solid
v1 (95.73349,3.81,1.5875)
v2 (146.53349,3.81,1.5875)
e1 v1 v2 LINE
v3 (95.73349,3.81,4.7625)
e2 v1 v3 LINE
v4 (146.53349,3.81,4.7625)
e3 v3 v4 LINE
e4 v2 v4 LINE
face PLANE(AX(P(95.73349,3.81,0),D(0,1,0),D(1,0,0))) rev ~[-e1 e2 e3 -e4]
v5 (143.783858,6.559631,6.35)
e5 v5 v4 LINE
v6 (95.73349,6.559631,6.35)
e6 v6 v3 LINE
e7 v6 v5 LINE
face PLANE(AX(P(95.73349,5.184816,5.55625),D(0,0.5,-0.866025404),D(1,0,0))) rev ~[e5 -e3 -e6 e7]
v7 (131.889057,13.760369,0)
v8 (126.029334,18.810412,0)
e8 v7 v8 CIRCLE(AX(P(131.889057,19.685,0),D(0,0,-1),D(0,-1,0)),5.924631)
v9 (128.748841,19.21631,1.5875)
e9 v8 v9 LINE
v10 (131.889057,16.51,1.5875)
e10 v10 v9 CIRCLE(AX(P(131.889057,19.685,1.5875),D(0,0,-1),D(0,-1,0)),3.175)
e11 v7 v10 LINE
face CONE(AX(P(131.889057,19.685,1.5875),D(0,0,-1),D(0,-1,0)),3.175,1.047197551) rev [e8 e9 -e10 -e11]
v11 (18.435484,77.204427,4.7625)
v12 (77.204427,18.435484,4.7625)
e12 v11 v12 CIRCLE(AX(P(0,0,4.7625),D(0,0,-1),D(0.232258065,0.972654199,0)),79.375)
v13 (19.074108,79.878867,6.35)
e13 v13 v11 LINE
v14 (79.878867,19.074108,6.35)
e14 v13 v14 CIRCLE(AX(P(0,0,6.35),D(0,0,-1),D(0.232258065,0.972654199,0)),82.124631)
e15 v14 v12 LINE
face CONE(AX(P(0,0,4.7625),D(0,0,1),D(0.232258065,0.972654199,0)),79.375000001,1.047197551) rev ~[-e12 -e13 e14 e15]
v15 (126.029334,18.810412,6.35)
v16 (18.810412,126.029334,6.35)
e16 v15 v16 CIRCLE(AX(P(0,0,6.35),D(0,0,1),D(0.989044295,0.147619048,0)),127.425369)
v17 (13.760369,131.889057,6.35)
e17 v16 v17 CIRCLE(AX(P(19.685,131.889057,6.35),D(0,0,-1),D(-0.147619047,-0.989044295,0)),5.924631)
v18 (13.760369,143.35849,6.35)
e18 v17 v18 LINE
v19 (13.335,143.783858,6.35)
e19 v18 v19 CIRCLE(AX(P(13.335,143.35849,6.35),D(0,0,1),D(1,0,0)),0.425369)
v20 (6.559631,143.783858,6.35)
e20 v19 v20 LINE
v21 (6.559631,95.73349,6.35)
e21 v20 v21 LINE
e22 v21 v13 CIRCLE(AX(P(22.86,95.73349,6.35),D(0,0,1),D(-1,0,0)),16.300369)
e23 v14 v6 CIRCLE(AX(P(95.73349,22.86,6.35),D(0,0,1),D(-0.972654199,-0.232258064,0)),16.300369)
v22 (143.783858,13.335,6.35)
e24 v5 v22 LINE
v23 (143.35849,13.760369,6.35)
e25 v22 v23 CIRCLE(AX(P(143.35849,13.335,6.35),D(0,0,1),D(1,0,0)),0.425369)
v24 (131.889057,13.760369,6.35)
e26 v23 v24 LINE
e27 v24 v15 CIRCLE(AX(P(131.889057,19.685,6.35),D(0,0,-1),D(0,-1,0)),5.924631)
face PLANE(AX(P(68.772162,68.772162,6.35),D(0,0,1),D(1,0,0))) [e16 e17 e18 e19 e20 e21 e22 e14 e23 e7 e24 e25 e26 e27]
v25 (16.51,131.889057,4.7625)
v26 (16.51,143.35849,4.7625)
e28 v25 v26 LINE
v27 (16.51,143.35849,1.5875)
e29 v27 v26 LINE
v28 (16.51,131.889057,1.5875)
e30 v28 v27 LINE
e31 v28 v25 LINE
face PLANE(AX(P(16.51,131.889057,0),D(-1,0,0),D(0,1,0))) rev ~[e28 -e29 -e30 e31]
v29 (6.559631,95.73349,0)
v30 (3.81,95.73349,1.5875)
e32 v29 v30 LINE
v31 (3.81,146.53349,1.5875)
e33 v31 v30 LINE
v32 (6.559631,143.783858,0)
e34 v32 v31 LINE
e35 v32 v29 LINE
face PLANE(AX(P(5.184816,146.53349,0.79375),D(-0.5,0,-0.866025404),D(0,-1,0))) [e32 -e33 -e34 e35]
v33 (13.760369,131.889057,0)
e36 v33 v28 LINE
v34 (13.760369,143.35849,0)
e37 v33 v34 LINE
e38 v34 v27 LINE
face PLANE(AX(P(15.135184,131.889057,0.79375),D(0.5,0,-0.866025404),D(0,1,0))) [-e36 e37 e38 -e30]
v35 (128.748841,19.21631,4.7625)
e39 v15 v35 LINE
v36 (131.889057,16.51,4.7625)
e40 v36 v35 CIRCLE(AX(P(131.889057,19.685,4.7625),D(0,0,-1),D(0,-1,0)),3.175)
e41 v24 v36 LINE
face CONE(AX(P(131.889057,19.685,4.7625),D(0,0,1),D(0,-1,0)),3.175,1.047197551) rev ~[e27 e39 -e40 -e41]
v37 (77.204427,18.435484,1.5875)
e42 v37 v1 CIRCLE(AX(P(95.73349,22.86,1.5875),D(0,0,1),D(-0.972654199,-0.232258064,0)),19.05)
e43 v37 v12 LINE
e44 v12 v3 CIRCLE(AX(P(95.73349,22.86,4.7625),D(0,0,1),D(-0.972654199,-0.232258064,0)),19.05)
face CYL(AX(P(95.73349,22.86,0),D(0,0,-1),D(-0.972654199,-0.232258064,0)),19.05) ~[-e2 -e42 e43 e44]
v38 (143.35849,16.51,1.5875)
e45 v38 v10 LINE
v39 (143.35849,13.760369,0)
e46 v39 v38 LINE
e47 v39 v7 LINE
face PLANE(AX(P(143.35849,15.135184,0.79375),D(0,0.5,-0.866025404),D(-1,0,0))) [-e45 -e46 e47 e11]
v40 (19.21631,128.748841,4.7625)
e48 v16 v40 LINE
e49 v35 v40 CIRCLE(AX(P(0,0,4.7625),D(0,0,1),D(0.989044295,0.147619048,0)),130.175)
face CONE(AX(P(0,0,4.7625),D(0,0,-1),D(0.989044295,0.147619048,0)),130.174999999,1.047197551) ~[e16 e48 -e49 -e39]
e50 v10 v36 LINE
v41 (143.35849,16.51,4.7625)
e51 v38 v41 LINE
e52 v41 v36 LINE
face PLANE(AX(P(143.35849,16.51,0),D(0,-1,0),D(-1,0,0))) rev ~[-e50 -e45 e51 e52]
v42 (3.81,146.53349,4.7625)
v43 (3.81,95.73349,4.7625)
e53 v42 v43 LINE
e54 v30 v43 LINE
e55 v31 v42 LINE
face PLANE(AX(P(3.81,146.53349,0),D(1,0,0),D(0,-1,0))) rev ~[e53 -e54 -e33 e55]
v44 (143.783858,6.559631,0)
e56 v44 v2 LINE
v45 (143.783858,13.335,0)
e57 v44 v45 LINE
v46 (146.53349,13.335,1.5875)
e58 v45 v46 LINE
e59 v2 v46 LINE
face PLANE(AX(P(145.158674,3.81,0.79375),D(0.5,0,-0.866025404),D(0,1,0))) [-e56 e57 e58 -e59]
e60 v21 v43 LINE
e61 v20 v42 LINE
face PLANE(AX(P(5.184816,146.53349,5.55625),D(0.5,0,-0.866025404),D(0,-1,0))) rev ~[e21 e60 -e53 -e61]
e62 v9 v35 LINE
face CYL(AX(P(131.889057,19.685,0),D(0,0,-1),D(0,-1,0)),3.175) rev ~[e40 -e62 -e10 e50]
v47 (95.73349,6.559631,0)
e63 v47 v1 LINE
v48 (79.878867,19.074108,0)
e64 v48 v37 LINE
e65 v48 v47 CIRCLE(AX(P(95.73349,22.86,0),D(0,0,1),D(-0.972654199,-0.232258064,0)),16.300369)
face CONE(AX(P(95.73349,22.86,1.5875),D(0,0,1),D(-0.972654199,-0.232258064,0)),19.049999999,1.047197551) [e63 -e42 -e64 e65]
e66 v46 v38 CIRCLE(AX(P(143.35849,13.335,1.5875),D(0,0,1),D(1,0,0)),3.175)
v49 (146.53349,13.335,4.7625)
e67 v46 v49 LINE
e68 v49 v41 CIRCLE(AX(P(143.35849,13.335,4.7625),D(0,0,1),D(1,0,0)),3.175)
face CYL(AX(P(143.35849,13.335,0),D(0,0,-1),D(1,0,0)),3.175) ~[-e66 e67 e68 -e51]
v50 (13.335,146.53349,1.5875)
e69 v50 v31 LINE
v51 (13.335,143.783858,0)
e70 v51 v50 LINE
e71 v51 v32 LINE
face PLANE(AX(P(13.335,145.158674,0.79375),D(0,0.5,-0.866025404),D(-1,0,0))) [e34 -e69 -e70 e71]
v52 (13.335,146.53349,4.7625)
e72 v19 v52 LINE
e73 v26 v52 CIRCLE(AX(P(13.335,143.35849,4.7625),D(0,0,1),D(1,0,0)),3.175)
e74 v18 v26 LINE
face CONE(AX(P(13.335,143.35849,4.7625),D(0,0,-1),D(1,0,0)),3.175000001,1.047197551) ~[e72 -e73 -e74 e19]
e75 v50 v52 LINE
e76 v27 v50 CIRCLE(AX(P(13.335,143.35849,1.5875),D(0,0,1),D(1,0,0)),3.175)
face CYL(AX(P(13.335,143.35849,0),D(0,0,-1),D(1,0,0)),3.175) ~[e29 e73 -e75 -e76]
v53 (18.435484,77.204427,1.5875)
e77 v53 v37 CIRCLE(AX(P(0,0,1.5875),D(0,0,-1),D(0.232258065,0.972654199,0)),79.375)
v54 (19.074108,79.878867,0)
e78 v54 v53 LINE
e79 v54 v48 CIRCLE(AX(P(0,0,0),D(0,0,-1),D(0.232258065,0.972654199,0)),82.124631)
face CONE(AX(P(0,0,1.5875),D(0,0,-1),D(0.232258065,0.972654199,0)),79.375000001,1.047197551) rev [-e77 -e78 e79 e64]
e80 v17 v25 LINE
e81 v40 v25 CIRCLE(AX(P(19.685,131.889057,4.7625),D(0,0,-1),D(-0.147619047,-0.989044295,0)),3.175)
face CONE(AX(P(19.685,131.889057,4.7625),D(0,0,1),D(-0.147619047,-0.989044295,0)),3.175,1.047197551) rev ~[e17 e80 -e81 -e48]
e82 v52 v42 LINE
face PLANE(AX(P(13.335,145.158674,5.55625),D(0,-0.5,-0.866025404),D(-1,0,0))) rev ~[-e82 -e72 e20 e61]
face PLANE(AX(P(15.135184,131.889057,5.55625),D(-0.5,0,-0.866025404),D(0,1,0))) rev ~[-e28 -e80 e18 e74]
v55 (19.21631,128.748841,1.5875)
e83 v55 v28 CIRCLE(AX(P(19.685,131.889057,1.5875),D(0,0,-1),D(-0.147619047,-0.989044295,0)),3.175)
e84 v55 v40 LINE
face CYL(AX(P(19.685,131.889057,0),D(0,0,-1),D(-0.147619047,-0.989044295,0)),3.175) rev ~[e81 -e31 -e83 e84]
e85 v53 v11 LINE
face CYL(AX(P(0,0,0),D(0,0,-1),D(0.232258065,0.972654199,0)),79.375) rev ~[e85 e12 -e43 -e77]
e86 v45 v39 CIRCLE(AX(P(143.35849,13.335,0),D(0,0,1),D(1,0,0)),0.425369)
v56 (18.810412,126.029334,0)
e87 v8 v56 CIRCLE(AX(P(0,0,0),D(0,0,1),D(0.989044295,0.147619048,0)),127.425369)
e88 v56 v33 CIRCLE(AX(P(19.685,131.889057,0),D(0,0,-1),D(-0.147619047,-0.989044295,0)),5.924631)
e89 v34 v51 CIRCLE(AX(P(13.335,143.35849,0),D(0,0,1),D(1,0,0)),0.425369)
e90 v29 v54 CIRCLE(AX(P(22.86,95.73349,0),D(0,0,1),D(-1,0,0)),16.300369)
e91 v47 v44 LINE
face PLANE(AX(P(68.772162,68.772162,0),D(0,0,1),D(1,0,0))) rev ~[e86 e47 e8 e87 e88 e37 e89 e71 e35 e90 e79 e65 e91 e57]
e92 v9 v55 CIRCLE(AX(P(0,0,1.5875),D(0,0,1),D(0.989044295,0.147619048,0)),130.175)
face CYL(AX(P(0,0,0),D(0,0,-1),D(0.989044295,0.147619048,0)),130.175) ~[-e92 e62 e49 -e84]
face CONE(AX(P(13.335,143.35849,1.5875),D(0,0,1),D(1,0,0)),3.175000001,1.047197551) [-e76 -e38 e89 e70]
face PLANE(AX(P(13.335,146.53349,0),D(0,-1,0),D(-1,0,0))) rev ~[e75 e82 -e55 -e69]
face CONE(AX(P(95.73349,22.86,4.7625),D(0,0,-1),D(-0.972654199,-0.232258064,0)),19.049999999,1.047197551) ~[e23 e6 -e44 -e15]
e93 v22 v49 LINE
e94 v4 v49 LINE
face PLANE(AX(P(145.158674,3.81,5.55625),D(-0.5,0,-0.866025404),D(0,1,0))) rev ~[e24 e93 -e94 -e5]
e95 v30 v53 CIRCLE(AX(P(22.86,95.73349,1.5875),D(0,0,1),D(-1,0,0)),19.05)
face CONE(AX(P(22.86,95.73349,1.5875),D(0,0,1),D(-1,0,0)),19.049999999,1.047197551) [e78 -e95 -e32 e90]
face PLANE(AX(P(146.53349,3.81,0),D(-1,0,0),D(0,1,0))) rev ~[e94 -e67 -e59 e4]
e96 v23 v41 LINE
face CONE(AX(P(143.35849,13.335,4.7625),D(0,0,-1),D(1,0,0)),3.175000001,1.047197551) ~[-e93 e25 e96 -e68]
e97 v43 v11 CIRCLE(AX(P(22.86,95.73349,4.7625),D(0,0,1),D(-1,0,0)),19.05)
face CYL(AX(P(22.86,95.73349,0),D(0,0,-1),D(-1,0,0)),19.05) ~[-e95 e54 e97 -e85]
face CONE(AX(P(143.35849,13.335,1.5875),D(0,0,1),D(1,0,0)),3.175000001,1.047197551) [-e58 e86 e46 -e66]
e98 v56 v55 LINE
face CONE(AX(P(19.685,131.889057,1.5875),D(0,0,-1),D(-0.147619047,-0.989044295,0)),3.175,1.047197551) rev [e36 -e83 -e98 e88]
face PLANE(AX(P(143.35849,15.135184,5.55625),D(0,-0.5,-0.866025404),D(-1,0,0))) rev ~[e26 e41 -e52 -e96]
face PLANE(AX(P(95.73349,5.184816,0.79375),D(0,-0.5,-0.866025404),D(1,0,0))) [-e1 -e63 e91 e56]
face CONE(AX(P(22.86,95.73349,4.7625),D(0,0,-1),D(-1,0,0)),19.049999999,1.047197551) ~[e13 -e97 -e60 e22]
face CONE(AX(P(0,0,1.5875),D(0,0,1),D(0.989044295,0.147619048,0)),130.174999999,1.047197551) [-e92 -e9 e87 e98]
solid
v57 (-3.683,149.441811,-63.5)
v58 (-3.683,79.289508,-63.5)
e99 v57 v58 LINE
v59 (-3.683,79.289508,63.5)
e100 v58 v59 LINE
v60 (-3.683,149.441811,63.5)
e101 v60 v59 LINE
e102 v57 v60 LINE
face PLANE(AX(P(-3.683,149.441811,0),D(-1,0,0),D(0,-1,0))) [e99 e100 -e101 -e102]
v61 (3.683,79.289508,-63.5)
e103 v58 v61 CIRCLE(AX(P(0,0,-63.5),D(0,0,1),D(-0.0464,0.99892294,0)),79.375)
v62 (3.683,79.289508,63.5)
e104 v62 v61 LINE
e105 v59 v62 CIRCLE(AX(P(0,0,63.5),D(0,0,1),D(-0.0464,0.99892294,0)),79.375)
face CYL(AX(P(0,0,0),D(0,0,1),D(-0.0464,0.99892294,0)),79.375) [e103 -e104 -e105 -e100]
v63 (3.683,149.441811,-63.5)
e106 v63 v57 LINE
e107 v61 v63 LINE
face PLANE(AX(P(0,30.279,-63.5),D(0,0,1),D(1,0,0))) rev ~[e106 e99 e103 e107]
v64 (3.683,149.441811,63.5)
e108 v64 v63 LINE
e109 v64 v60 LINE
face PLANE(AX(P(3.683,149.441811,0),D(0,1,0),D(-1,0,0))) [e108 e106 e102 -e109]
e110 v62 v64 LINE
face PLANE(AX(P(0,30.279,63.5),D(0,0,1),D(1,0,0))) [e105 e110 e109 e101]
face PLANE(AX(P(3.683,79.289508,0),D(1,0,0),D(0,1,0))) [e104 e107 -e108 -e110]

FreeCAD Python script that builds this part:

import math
import FreeCAD as App
import Part
import Sketcher
from FreeCAD import Vector
Q = App.Units.Quantity


def edges_at(feature, points):
    """Names of the edges that pass closest to the given points."""
    edges = feature.Shape.Edges
    near = lambda p: min(range(len(edges)), key=lambda i: edges[i].distToShape(Part.Vertex(*p))[0])
    return sorted({f"Edge{near(p) + 1}" for p in points})

doc = App.newDocument("Part")
body = doc.addObject("PartDesign::Body", "Body")

# Sketch on XY plane
sketch1 = doc.addObject("Sketcher::SketchObject", "Sketch")
body.addObject(sketch1)
sketch1.AttachmentSupport = (doc.XY_Plane, [""])
sketch1.MapMode = "FlatFace"
sketch1.addGeometry([
    Part.ArcOfCircle(Part.Circle(Vector(22.86, 95.73349, 0), Vector(0, 0, 1), 19.05), math.radians(180), math.radians(256.56995)),  # 0
    Part.ArcOfCircle(Part.Circle(Vector(0, 0, 0), Vector(0, 0, 1), 79.375), math.radians(13.43005), math.radians(76.56995)),  # 1
    Part.ArcOfCircle(Part.Circle(Vector(95.73349, 22.86, 0), Vector(0, 0, 1), 19.05), math.radians(-166.56995), math.radians(-90)),  # 2
    Part.LineSegment(Vector(95.73349, 3.81, 0), Vector(146.53349, 3.81, 0)),  # 3
    Part.LineSegment(Vector(146.53349, 3.81, 0), Vector(146.53349, 13.335, 0)),  # 4
    Part.ArcOfCircle(Part.Circle(Vector(143.35849, 13.335, 0), Vector(0, 0, 1), 3.175), math.radians(0), math.radians(90)),  # 5
    Part.LineSegment(Vector(143.35849, 16.51, 0), Vector(131.889057, 16.51, 0)),  # 6
    Part.ArcOfCircle(Part.Circle(Vector(131.889057, 19.685, 0), Vector(0, 0, 1), 3.175), math.radians(-171.511028), math.radians(-90)),  # 7
    Part.ArcOfCircle(Part.Circle(Vector(0, 0, 0), Vector(0, 0, 1), 130.175), math.radians(8.488972), math.radians(81.511028)),  # 8
    Part.ArcOfCircle(Part.Circle(Vector(19.685, 131.889057, 0), Vector(0, 0, 1), 3.175), math.radians(180), math.radians(261.511028)),  # 9
    Part.LineSegment(Vector(16.51, 131.889057, 0), Vector(16.51, 143.35849, 0)),  # 10
    Part.ArcOfCircle(Part.Circle(Vector(13.335, 143.35849, 0), Vector(0, 0, 1), 3.175), math.radians(0), math.radians(90)),  # 11
    Part.LineSegment(Vector(13.335, 146.53349, 0), Vector(3.81, 146.53349, 0)),  # 12
    Part.LineSegment(Vector(3.81, 146.53349, 0), Vector(3.81, 95.73349, 0)),  # 13
], False)
sketch1.addConstraint([
    Sketcher.Constraint("Tangent", 0, 2, 1, 2),
    Sketcher.Constraint("Tangent", 1, 1, 2, 1),
    Sketcher.Constraint("Tangent", 2, 2, 3, 1),
    Sketcher.Constraint("Coincident", 3, 2, 4, 1),
    Sketcher.Constraint("Tangent", 4, 2, 5, 1),
    Sketcher.Constraint("Tangent", 5, 2, 6, 1),
    Sketcher.Constraint("Tangent", 6, 2, 7, 2),
    Sketcher.Constraint("Tangent", 7, 1, 8, 1),
    Sketcher.Constraint("Tangent", 8, 2, 9, 2),
    Sketcher.Constraint("Tangent", 9, 1, 10, 1),
    Sketcher.Constraint("Tangent", 10, 2, 11, 1),
    Sketcher.Constraint("Tangent", 11, 2, 12, 1),
    Sketcher.Constraint("Coincident", 12, 2, 13, 1),
    Sketcher.Constraint("Tangent", 13, 2, 0, 1),
    Sketcher.Constraint("Horizontal", 3),
    Sketcher.Constraint("Vertical", 4),
    Sketcher.Constraint("Horizontal", 6),
    Sketcher.Constraint("Vertical", 10),
    Sketcher.Constraint("Horizontal", 12),
    Sketcher.Constraint("Vertical", 13),
    Sketcher.Constraint("Coincident", 1, 3, -1, 1),
    Sketcher.Constraint("Coincident", 8, 3, -1, 1),
    Sketcher.Constraint("Equal", 0, 2),
    Sketcher.Constraint("Equal", 5, 7),
    Sketcher.Constraint("Equal", 7, 9),
    Sketcher.Constraint("Equal", 9, 11),
    Sketcher.Constraint("Equal", 12, 4),
    Sketcher.Constraint("Equal", 6, 10),
    Sketcher.Constraint("Equal", 3, 13),
    Sketcher.Constraint("DistanceX", 3, 1, 3, 2, Q("2 in")),
    Sketcher.Constraint("Radius", 0, Q("0.75 in")),
    Sketcher.Constraint("Radius", 1, Q("3.125 in")),
    Sketcher.Constraint("Radius", 5, Q("0.125 in")),
    Sketcher.Constraint("Radius", 8, Q("5.125 in")),
    Sketcher.Constraint("DistanceX", -1, 1, 0, 3, Q("0.9 in")),
    Sketcher.Constraint("DistanceY", 3, 2, 5, 2, Q("0.5 in")),
])
pad1 = doc.addObject("PartDesign::Pad", "Pad")
body.addObject(pad1)
pad1.Profile = sketch1
pad1.Length = Q("0.25 in")
doc.recompute()

chamfer = doc.addObject("PartDesign::Chamfer", "Chamfer")
body.addObject(chamfer)
chamfer.Base = (pad1, edges_at(pad1, [
    (8.572, 146.533, 0),
    (15.58, 145.604, 0),
    (16.51, 137.624, 0),
    (17.28, 129.816, 0),
    (92.048, 92.048, 0),
    (129.816, 17.28, 0),
    (137.624, 16.51, 0),
    (145.604, 15.58, 0),
    (146.533, 8.572, 0),
    (121.133, 3.81, 0),
    (83.931, 7.907, 0),
    (56.127, 56.127, 0),
    (7.907, 83.931, 0),
    (3.81, 121.133, 0),
]))
chamfer.ChamferType = "Two distances"
chamfer.Size = 2.749631
chamfer.Size2 = Q("0.0625 in")
chamfer.FlipDirection = True
doc.recompute()

chamfer2 = doc.addObject("PartDesign::Chamfer", "Chamfer001")
body.addObject(chamfer2)
chamfer2.Base = (chamfer, edges_at(chamfer, [
    (7.907, 83.931, 6.35),
    (56.127, 56.127, 6.35),
    (83.931, 7.907, 6.35),
    (121.133, 3.81, 6.35),
    (146.533, 8.572, 6.35),
    (145.604, 15.58, 6.35),
    (137.624, 16.51, 6.35),
    (129.816, 17.28, 6.35),
    (92.048, 92.048, 6.35),
    (17.28, 129.816, 6.35),
    (3.81, 121.133, 6.35),
    (16.51, 137.624, 6.35),
    (15.58, 145.604, 6.35),
    (8.572, 146.533, 6.35),
]))
chamfer2.ChamferType = "Two distances"
chamfer2.Size = 2.749631
chamfer2.Size2 = Q("0.0625 in")
body2 = doc.addObject("PartDesign::Body", "Body001")

# Sketch on XY plane
sketch2 = doc.addObject("Sketcher::SketchObject", "Sketch001")
body2.addObject(sketch2)
sketch2.AttachmentSupport = (doc.getObject("XY_Plane001"), [""])
sketch2.MapMode = "FlatFace"
sketch2.addGeometry([
    Part.LineSegment(Vector(3.683, 149.441811, 0), Vector(-3.683, 149.441811, 0)),
    Part.LineSegment(Vector(-3.683, 149.441811, 0), Vector(-3.683, 79.289508, 0)),
    Part.ArcOfCircle(Part.Circle(Vector(0, 0, 0), Vector(0, 0, 1), 79.375), math.radians(92.659479), math.radians(447.340521)),
    Part.LineSegment(Vector(3.683, 79.289508, 0), Vector(3.683, 149.441811, 0)),
], False)
sketch2.addConstraint([
    Sketcher.Constraint("Coincident", 0, 2, 1, 1),
    Sketcher.Constraint("Coincident", 1, 2, 2, 1),
    Sketcher.Constraint("Coincident", 2, 2, 3, 1),
    Sketcher.Constraint("Coincident", 3, 2, 0, 1),
    Sketcher.Constraint("Horizontal", 0),
    Sketcher.Constraint("Vertical", 1),
    Sketcher.Constraint("Vertical", 3),
    Sketcher.Constraint("Coincident", 2, 3, -1, 1),
    Sketcher.Constraint("Horizontal", 1, 2, 2, 2),
    Sketcher.Constraint("Radius", 2, Q("3.125 in")),
    Sketcher.Constraint("DistanceX", 0, 2, 0, 1, Q("0.29 in")),
    Sketcher.Constraint("DistanceY", 1, 2, 1, 1, Q("70.152303 mm")),
])
pad2 = doc.addObject("PartDesign::Pad", "Pad001")
body2.addObject(pad2)
pad2.Profile = sketch2
pad2.Length = Q("5 in")
pad2.Midplane = True

doc.recompute()
